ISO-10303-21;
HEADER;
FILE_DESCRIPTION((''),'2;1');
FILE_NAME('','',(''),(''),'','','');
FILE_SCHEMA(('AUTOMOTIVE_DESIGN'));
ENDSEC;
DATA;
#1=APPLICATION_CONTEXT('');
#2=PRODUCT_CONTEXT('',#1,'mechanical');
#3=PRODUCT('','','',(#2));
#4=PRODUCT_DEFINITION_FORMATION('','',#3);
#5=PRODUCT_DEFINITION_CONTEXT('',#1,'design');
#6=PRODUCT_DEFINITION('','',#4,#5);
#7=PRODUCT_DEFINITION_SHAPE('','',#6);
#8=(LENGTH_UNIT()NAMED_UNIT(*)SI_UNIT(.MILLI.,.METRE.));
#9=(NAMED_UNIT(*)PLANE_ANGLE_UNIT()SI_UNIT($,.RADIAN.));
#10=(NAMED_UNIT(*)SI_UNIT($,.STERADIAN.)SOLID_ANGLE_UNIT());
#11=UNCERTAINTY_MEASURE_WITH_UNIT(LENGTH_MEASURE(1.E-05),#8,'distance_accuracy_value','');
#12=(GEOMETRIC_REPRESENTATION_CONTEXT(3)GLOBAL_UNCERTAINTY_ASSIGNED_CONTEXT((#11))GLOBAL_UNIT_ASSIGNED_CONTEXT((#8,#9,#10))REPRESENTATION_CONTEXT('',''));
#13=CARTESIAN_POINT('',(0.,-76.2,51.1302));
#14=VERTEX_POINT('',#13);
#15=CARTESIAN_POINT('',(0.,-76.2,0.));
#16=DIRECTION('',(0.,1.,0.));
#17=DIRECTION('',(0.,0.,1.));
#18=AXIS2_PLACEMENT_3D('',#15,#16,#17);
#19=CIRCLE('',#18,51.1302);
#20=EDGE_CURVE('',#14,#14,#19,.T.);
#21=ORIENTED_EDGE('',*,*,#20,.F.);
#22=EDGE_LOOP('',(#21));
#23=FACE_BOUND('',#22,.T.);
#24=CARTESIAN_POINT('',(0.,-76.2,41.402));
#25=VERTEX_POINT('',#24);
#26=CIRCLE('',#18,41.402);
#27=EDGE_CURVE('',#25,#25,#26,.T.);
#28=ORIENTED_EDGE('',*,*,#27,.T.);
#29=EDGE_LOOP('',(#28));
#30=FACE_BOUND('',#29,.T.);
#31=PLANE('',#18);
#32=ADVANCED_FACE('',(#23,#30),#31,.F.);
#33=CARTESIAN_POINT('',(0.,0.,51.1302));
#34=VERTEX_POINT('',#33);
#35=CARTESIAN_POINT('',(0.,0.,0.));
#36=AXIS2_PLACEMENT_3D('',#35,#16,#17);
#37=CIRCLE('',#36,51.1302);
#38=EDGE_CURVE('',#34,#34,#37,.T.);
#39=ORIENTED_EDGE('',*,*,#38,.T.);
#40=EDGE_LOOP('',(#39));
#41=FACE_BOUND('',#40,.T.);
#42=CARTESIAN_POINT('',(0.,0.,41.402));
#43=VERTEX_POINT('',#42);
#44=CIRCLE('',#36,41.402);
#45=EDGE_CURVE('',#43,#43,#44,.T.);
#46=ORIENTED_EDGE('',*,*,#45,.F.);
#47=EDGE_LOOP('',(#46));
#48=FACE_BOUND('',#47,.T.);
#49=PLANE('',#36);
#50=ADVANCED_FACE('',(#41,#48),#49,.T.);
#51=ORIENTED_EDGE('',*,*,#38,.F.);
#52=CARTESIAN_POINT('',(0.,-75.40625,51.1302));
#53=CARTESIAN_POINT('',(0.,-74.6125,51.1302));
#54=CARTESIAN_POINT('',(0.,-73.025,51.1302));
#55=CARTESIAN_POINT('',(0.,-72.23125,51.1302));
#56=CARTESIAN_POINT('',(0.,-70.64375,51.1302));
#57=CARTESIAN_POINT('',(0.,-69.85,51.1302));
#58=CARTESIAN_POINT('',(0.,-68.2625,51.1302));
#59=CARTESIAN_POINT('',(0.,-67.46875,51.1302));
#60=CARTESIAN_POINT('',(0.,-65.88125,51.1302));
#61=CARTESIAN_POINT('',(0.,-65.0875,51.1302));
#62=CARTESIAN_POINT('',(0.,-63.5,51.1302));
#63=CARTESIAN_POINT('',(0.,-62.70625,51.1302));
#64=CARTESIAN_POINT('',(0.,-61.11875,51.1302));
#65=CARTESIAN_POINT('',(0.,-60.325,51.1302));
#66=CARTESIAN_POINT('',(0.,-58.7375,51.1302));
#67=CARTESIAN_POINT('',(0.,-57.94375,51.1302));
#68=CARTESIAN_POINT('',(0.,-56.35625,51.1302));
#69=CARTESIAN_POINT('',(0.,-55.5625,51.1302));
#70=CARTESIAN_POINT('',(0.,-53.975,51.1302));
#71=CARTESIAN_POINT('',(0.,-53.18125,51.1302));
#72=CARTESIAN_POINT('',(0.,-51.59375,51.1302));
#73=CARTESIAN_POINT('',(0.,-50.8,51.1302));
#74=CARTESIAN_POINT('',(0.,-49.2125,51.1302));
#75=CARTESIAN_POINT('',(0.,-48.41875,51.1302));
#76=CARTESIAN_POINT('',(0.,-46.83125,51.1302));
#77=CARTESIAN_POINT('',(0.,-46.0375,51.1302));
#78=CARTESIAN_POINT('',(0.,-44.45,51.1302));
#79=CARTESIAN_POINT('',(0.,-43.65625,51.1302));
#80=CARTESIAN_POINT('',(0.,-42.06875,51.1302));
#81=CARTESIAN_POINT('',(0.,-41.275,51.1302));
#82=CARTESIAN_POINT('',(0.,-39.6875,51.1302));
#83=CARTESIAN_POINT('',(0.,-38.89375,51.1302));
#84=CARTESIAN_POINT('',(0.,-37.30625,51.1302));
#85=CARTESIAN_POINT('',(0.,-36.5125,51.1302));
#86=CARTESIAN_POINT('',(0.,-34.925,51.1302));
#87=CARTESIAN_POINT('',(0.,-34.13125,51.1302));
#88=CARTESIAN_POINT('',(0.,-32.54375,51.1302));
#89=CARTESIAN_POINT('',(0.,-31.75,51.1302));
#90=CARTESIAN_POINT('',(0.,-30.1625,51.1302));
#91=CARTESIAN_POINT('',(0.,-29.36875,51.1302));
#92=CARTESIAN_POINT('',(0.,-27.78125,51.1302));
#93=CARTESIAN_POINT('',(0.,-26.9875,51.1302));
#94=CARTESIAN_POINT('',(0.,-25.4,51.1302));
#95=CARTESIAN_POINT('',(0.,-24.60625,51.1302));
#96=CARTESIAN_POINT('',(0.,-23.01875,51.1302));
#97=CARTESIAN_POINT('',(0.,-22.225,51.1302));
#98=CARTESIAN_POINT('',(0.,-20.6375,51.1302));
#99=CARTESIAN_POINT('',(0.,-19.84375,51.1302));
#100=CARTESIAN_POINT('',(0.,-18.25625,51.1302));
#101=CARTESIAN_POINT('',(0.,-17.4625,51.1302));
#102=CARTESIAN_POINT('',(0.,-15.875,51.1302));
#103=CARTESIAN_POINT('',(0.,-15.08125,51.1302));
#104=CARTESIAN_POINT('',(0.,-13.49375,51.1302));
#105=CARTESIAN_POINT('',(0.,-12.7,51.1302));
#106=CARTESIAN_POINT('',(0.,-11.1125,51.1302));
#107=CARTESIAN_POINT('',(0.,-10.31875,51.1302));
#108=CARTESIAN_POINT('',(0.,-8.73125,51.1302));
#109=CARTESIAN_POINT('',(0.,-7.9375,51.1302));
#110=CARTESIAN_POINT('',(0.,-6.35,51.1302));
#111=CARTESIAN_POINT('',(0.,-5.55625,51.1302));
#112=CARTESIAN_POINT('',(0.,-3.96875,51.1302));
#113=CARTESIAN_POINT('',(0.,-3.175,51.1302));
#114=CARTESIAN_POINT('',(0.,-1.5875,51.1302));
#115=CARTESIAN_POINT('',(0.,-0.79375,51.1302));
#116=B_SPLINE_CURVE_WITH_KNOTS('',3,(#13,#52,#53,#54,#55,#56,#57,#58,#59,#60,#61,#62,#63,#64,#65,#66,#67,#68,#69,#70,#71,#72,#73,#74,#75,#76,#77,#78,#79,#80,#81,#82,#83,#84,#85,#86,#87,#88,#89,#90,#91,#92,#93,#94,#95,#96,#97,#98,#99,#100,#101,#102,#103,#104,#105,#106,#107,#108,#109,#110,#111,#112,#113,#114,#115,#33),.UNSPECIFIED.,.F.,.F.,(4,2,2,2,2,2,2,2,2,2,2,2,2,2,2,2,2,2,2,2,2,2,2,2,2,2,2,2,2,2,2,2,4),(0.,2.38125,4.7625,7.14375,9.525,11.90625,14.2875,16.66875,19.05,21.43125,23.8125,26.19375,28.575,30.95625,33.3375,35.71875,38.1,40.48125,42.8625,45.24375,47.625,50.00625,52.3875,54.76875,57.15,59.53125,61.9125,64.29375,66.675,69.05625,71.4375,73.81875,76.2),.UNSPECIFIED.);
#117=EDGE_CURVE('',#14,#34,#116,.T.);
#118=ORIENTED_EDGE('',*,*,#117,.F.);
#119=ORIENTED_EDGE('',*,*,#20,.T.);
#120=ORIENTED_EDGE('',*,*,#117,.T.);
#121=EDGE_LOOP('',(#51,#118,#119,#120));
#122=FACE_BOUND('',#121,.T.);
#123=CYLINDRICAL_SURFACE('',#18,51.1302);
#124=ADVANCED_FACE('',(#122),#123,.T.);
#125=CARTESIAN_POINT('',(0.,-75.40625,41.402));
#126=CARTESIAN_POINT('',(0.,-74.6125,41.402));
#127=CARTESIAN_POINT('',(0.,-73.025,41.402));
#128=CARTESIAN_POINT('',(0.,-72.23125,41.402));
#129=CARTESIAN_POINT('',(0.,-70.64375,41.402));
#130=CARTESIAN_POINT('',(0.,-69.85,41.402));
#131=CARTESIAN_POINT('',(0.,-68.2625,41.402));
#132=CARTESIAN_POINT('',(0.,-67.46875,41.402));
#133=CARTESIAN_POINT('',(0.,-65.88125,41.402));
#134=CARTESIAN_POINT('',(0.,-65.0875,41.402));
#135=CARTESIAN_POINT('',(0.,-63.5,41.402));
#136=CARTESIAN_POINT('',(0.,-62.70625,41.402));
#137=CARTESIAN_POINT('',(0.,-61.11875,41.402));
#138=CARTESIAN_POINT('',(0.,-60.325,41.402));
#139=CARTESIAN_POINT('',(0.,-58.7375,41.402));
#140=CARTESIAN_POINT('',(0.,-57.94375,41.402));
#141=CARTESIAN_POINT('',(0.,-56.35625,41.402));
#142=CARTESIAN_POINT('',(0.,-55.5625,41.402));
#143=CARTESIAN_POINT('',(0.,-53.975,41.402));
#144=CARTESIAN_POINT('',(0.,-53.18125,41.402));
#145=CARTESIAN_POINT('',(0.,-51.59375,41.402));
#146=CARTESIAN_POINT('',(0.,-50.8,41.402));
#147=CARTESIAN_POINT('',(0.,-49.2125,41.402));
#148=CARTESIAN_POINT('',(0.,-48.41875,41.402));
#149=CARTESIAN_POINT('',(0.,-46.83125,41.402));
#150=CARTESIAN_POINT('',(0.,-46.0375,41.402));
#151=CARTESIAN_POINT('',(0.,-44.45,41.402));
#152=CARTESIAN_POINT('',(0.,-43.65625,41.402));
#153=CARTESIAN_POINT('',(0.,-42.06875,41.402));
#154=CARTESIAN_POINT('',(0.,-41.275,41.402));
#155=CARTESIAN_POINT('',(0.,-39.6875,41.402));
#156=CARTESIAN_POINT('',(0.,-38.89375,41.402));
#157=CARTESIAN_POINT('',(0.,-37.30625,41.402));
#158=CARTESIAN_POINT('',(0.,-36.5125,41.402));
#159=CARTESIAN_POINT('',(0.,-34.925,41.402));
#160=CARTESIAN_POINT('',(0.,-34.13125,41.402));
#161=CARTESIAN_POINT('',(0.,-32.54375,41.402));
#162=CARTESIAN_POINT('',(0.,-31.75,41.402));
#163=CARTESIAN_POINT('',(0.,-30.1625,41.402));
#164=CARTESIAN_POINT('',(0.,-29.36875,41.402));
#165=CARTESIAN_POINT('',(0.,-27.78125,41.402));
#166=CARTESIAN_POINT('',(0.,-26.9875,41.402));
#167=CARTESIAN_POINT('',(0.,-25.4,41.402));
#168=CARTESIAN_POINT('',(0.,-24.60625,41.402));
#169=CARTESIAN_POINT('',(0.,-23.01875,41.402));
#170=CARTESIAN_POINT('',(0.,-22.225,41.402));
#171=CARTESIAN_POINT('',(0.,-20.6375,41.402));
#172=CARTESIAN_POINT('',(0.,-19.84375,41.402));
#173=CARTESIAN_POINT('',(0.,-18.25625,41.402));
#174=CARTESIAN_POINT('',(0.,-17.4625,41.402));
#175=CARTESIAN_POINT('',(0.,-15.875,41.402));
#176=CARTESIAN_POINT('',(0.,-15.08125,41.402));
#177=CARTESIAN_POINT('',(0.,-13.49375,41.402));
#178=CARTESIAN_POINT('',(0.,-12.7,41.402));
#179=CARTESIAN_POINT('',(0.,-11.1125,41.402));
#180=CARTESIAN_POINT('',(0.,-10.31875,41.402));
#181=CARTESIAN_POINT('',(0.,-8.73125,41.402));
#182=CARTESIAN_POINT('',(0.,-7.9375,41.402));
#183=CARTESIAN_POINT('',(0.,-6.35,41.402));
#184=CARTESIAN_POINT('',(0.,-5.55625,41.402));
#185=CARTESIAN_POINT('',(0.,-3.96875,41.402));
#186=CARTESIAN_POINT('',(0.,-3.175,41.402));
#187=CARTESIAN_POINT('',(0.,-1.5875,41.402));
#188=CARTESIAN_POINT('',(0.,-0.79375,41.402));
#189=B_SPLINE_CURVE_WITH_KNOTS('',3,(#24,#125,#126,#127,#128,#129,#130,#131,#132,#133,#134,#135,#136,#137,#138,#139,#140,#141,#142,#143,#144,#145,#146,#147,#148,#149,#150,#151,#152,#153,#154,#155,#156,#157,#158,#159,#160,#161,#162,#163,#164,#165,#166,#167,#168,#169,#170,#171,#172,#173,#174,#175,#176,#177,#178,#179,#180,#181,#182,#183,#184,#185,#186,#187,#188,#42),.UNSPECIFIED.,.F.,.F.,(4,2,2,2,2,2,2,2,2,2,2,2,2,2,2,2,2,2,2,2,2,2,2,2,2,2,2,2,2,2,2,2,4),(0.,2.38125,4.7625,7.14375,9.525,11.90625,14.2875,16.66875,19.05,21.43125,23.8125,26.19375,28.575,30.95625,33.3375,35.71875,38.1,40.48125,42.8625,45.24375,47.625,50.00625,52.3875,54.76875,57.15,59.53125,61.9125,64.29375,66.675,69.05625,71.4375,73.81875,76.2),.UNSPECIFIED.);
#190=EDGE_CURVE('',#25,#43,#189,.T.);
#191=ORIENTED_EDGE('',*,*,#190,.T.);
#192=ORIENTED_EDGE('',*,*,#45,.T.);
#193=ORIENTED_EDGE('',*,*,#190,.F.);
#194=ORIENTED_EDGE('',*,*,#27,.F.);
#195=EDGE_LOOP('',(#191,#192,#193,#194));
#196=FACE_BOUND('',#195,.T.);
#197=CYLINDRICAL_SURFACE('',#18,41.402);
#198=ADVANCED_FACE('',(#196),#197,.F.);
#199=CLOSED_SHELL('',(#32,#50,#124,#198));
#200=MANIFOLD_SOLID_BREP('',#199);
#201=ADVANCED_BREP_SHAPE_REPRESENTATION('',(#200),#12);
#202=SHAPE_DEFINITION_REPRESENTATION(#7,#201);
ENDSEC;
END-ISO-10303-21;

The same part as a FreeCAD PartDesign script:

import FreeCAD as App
import Part
import Sketcher

V = App.Vector
Q = App.Units.Quantity

doc = App.newDocument("Part")
body = doc.addObject("PartDesign::Body", "Body")

sketch1 = doc.addObject("Sketcher::SketchObject", "Sketch")
body.addObject(sketch1)
sketch1.AttachmentSupport = (doc.XZ_Plane, [""])
sketch1.MapMode = "FlatFace"
sketch1.addGeometry([
    Part.Circle(V(0, 0, 0), V(0, 0, 1), 51),
    Part.Circle(V(0, 0, 0), V(0, 0, 1), 41),
], False)
sketch1.addConstraint([
    Sketcher.Constraint("Coincident", 0, 3, -1, 1),
    Sketcher.Constraint("Coincident", 1, 3, -1, 1),
    Sketcher.Constraint("Diameter", 1, Q("3.26 in")),
    Sketcher.Constraint("Diameter", 0, Q("4.026 in")),
])
pad1 = doc.addObject("PartDesign::Pad", "Pad")
body.addObject(pad1)
pad1.Profile = sketch1
pad1.Length = Q("3 in")

doc.recompute()
